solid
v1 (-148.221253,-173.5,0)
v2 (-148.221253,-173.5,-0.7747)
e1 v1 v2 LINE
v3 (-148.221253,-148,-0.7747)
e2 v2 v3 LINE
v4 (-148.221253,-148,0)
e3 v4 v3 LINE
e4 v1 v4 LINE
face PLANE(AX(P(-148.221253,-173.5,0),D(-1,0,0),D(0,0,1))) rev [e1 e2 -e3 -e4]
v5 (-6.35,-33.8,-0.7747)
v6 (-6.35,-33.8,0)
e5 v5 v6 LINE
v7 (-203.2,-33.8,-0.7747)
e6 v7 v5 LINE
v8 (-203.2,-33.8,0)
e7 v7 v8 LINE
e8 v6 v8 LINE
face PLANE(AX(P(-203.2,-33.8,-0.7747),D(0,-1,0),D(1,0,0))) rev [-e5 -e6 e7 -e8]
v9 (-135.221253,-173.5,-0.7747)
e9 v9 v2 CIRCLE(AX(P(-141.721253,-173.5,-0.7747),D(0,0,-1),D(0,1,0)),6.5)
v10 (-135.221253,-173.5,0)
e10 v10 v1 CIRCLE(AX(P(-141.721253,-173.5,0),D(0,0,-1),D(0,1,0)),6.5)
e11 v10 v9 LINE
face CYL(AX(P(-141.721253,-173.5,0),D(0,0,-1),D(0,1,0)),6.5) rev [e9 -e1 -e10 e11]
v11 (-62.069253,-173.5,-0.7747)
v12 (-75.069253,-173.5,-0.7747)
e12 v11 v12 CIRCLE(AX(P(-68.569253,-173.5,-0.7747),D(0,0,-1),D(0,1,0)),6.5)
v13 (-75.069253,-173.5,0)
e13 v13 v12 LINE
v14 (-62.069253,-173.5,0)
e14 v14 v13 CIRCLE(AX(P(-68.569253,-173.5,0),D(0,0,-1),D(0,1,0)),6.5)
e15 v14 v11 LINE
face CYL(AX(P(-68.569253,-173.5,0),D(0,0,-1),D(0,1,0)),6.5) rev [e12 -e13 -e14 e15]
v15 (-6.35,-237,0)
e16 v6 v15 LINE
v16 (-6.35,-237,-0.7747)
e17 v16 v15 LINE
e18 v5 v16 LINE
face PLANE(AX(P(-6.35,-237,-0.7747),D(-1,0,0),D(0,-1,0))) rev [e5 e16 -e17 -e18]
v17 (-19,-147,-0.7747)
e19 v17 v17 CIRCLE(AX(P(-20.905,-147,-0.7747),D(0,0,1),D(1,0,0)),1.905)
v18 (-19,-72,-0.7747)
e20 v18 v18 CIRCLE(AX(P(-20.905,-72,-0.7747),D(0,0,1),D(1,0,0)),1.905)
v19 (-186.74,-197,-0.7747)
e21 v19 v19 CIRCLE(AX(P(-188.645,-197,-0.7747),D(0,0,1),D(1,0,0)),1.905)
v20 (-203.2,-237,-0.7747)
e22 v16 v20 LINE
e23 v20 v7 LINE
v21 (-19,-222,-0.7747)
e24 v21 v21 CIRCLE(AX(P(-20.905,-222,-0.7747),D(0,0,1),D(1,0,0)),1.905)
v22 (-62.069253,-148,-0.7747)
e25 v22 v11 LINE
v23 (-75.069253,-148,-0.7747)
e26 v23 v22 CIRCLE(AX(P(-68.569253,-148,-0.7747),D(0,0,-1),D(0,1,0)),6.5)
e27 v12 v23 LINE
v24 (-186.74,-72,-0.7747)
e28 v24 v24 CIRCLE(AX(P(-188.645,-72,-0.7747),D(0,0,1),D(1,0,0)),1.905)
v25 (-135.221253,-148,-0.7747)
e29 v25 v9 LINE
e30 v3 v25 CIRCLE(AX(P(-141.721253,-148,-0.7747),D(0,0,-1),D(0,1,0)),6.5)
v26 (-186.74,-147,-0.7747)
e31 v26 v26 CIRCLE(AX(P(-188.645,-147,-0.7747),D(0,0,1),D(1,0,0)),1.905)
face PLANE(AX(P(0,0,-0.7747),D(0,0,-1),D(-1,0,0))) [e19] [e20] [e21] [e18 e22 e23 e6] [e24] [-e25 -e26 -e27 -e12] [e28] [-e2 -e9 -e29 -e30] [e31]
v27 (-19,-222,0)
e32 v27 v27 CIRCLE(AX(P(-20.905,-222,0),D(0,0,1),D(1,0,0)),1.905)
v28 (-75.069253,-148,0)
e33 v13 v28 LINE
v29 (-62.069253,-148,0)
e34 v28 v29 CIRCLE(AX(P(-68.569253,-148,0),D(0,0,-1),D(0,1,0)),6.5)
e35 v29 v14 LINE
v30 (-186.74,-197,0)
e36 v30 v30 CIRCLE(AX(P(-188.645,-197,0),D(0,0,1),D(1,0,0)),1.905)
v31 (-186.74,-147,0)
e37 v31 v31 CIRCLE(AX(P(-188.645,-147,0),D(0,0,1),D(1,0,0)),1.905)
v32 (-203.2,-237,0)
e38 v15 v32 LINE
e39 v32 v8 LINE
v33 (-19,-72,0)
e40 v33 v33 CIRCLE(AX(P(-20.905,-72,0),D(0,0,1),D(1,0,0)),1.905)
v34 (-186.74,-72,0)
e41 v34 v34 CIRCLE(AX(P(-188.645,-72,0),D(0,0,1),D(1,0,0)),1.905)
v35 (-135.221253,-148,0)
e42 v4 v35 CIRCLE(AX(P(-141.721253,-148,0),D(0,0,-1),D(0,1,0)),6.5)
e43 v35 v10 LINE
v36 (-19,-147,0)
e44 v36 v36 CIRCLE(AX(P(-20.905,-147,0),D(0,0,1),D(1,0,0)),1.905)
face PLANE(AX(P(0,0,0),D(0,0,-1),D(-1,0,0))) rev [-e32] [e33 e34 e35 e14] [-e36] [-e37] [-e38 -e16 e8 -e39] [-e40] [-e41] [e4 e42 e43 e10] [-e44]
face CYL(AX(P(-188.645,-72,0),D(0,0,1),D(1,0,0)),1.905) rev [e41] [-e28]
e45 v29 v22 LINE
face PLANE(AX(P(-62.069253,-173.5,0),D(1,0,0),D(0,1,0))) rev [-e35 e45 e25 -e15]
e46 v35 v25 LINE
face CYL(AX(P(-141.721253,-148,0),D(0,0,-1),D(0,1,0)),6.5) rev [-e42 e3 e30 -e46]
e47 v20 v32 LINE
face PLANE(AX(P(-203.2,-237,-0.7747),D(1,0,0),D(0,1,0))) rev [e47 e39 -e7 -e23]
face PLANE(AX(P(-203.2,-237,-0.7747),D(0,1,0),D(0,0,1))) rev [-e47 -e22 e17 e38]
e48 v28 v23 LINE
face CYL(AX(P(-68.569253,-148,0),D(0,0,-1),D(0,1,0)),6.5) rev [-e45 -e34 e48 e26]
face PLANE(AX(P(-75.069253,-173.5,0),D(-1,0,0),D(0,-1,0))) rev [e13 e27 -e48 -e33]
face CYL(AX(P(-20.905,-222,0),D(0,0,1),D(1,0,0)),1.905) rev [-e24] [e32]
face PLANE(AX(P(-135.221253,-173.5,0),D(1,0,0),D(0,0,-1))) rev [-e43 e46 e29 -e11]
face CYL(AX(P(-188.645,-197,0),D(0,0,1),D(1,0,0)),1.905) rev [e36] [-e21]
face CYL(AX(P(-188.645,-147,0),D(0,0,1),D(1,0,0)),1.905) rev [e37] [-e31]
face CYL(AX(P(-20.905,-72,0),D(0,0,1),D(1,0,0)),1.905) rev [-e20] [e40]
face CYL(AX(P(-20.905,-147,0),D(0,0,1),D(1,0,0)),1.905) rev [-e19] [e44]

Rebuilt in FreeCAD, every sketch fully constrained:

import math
import FreeCAD as App
import Part
import Sketcher
from FreeCAD import Vector
Q = App.Units.Quantity


def add_polygon(sketch, points):
    """Adds a closed chain of lines whose ends are joined by coincident constraints."""
    first, n = sketch.GeometryCount, len(points)
    for a, b in zip(points, points[1:] + points[:1]):
        sketch.addGeometry(Part.LineSegment(App.Vector(*a, 0), App.Vector(*b, 0)), False)
    for i in range(n):
        sketch.addConstraint(Sketcher.Constraint("Coincident", first + i, 2, first + (i + 1) % n, 1))

doc = App.newDocument("Part")
params = doc.addObject("Spreadsheet::Sheet", "Params")
for row, (alias, value) in enumerate([
    ("sketch1_height", "8 in"),
    ("sketch1_width", "7.75 in"),
    ("pad1_length", "0.0305 in"),
    ("sketch3_width", "7.75 in"),
    ("sketch3_height", "0.024 in"),
    ("pad2_length", "12 mm"),
    ("sketch4_width", "7.75 in"),
    ("sketch4_height", "0.47 in"),
    ("pad3_length", "0.0305 in"),
    ("sketch5_width", "7.75 in"),
    ("sketch5_height", "0.024 in"),
    ("pocket2_length", "12 mm"),
    ("sketch6_diameter", "0.15 in"),
    ("hole_diameter", "0.15 in"),
    ("pad4_length", "0.0305 in"),
    ("pad5_length", "0.0305 in"),
    ("pad6_length", "0.0305 in"),
], start=1):
    params.set(f"A{row}", alias)
    params.set(f"B{row}", "=" + value)
    params.setAlias(f"B{row}", alias)

body = doc.addObject("PartDesign::Body", "Body")

sketch1 = doc.addObject("Sketcher::SketchObject", "Sketch")
body.addObject(sketch1)
sketch1.AttachmentSupport = (doc.XY_Plane, [""])
sketch1.MapMode = "FlatFace"
add_polygon(sketch1, [(-203.2, -237), (-203.2, -33.8), (-6.35, -33.8), (-6.35, -237)])
sketch1.addConstraint([
    Sketcher.Constraint("Vertical", 0),
    Sketcher.Constraint("Horizontal", 1),
    Sketcher.Constraint("Vertical", 2),
    Sketcher.Constraint("Horizontal", 3),
    Sketcher.Constraint("DistanceY", 0, 1, 0, 2, Q("8 in")),
    Sketcher.Constraint("DistanceX", 0, 2, -1, 1, Q("8 in")),
    Sketcher.Constraint("DistanceX", 1, 1, 1, 2, Q("7.75 in")),
    Sketcher.Constraint("DistanceY", 0, 2, -1, 1, Q("33.8 mm")),
])
sketch1.setExpression("Constraints[8]", "Params.sketch1_height")
sketch1.setExpression("Constraints[10]", "Params.sketch1_width")
pad1 = doc.addObject("PartDesign::Pad", "Pad")
body.addObject(pad1)
pad1.Profile = sketch1
pad1.setExpression("Length", "Params.pad1_length")
pad1.Reversed = True

sketch2 = doc.addObject("Sketcher::SketchObject", "Sketch001")
body.addObject(sketch2)
sketch2.AttachmentSupport = (doc.XY_Plane, [""])
sketch2.MapMode = "FlatFace"
sketch2.AttachmentOffset = App.Placement(Vector(0, 0, -0.0305 * 25.4), App.Rotation())
sketch2.addGeometry([
    Part.LineSegment(Vector(-135.221253, -148, 0), Vector(-135.221253, -173.5, 0)),
    Part.ArcOfCircle(Part.Circle(Vector(-141.721253, -173.5, 0), Vector(0, 0, 1), 6.5), math.radians(180), math.radians(360)),
    Part.LineSegment(Vector(-148.221253, -173.5, 0), Vector(-148.221253, -148, 0)),
    Part.ArcOfCircle(Part.Circle(Vector(-141.721253, -148, 0), Vector(0, 0, 1), 6.5), math.radians(0), math.radians(180)),
    Part.LineSegment(Vector(-62.069253, -148, 0), Vector(-62.069253, -173.5, 0)),
    Part.ArcOfCircle(Part.Circle(Vector(-68.569253, -173.5, 0), Vector(0, 0, 1), 6.5), math.radians(180), math.radians(360)),
    Part.LineSegment(Vector(-75.069253, -173.5, 0), Vector(-75.069253, -148, 0)),
    Part.ArcOfCircle(Part.Circle(Vector(-68.569253, -148, 0), Vector(0, 0, 1), 6.5), math.radians(0), math.radians(180)),
], False)
sketch2.addConstraint([
    Sketcher.Constraint("Tangent", 0, 2, 1, 2),
    Sketcher.Constraint("Tangent", 1, 1, 2, 1),
    Sketcher.Constraint("Tangent", 2, 2, 3, 2),
    Sketcher.Constraint("Tangent", 3, 1, 0, 1),
    Sketcher.Constraint("Tangent", 4, 2, 5, 2),
    Sketcher.Constraint("Tangent", 5, 1, 6, 1),
    Sketcher.Constraint("Tangent", 6, 2, 7, 2),
    Sketcher.Constraint("Tangent", 7, 1, 4, 1),
    Sketcher.Constraint("Vertical", 0),
    Sketcher.Constraint("Vertical", 2),
    Sketcher.Constraint("Vertical", 4),
    Sketcher.Constraint("Vertical", 6),
    Sketcher.Constraint("Equal", 3, 5),
    Sketcher.Constraint("Horizontal", 1, 3, 5, 3),
    Sketcher.Constraint("Horizontal", 3, 3, 7, 3),
    Sketcher.Constraint("Radius", 1, Q("6.5 mm")),
    Sketcher.Constraint("DistanceX", 1, 3, 5, 3, Q("2.88 in")),
    Sketcher.Constraint("DistanceY", 0, 2, 0, 1, Q("25.5 mm")),
    Sketcher.Constraint("DistanceY", 1, 3, -1, 1, Q("173.5 mm")),
    Sketcher.Constraint("DistanceX", 1, 3, -1, 1, Q("141.721253 mm")),
])
pocket1 = doc.addObject("PartDesign::Pocket", "Pocket")
body.addObject(pocket1)
pocket1.Profile = sketch2
pocket1.Type = "ThroughAll"
pocket1.Reversed = True

sketch3 = doc.addObject("Sketcher::SketchObject", "Sketch002")
body.addObject(sketch3)
sketch3.AttachmentSupport = (doc.XY_Plane, [""])
sketch3.MapMode = "FlatFace"
add_polygon(sketch3, [(-203.2, -33.8), (-203.2, -34.4096), (-6.35, -34.4096), (-6.35, -33.8)])
sketch3.addConstraint([
    Sketcher.Constraint("Vertical", 0),
    Sketcher.Constraint("Horizontal", 1),
    Sketcher.Constraint("Vertical", 2),
    Sketcher.Constraint("Horizontal", 3),
    Sketcher.Constraint("DistanceX", 0, 2, -1, 1, Q("8 in")),
    Sketcher.Constraint("DistanceX", 1, 1, 1, 2, Q("7.75 in")),
    Sketcher.Constraint("DistanceY", 0, 2, 0, 1, Q("0.024 in")),
    Sketcher.Constraint("DistanceY", 0, 2, -1, 1, Q("34.4096 mm")),
])
sketch3.setExpression("Constraints[9]", "Params.sketch3_width")
sketch3.setExpression("Constraints[10]", "Params.sketch3_height")
pad2 = doc.addObject("PartDesign::Pad", "Pad001")
body.addObject(pad2)
pad2.Profile = sketch3
pad2.setExpression("Length", "Params.pad2_length")

sketch4 = doc.addObject("Sketcher::SketchObject", "Sketch003")
body.addObject(sketch4)
sketch4.AttachmentSupport = (doc.XY_Plane, [""])
sketch4.MapMode = "FlatFace"
add_polygon(sketch4, [(-203.2, -47.966004), (-203.2, -59.904004), (-6.35, -59.904004), (-6.35, -47.966004)])
sketch4.addConstraint([
    Sketcher.Constraint("Vertical", 0),
    Sketcher.Constraint("Horizontal", 1),
    Sketcher.Constraint("Vertical", 2),
    Sketcher.Constraint("Horizontal", 3),
    Sketcher.Constraint("DistanceX", 0, 2, -1, 1, Q("8 in")),
    Sketcher.Constraint("DistanceX", 1, 1, 1, 2, Q("7.75 in")),
    Sketcher.Constraint("DistanceY", 0, 2, 0, 1, Q("0.47 in")),
    Sketcher.Constraint("DistanceY", 0, 2, -1, 1, Q("59.904004 mm")),
])
sketch4.setExpression("Constraints[9]", "Params.sketch4_width")
sketch4.setExpression("Constraints[10]", "Params.sketch4_height")
pad3 = doc.addObject("PartDesign::Pad", "Pad002")
body.addObject(pad3)
pad3.Profile = sketch4
pad3.setExpression("Length", "Params.pad3_length")
pad3.Reversed = True

sketch5 = doc.addObject("Sketcher::SketchObject", "Sketch004")
body.addObject(sketch5)
sketch5.AttachmentSupport = (doc.XY_Plane, [""])
sketch5.MapMode = "FlatFace"
sketch5.AttachmentOffset = App.Placement(Vector(0, 0, 12), App.Rotation())
add_polygon(sketch5, [(-203.2, -33.8), (-203.2, -34.4096), (-6.35, -34.4096), (-6.35, -33.8)])
sketch5.addConstraint([
    Sketcher.Constraint("Vertical", 0),
    Sketcher.Constraint("Horizontal", 1),
    Sketcher.Constraint("Vertical", 2),
    Sketcher.Constraint("Horizontal", 3),
    Sketcher.Constraint("DistanceX", 0, 2, -1, 1, Q("8 in")),
    Sketcher.Constraint("DistanceX", 1, 1, 1, 2, Q("7.75 in")),
    Sketcher.Constraint("DistanceY", 0, 2, 0, 1, Q("0.024 in")),
    Sketcher.Constraint("DistanceY", 0, 2, -1, 1, Q("34.4096 mm")),
])
sketch5.setExpression("Constraints[9]", "Params.sketch5_width")
sketch5.setExpression("Constraints[10]", "Params.sketch5_height")
pocket2 = doc.addObject("PartDesign::Pocket", "Pocket001")
body.addObject(pocket2)
pocket2.Profile = sketch5
pocket2.setExpression("Length", "Params.pocket2_length")

sketch6 = doc.addObject("Sketcher::SketchObject", "Sketch005")
body.addObject(sketch6)
sketch6.AttachmentSupport = (doc.XY_Plane, [""])
sketch6.MapMode = "FlatFace"
sketch6.addGeometry([
    Part.Circle(Vector(-188.645, -72, 0), Vector(0, 0, 1), 1.905),
    Part.Circle(Vector(-188.645, -222, 0), Vector(0, 0, 1), 1.905),
    Part.Circle(Vector(-188.645, -197, 0), Vector(0, 0, 1), 1.905),
    Part.Circle(Vector(-188.645, -172, 0), Vector(0, 0, 1), 1.905),
    Part.Circle(Vector(-188.645, -147, 0), Vector(0, 0, 1), 1.905),
    Part.Circle(Vector(-188.645, -122, 0), Vector(0, 0, 1), 1.905),
    Part.Circle(Vector(-188.645, -97, 0), Vector(0, 0, 1), 1.905),
], False)
sketch6.addConstraint([
    Sketcher.Constraint("Equal", 0, 1),
    Sketcher.Constraint("Equal", 1, 2),
    Sketcher.Constraint("Equal", 2, 3),
    Sketcher.Constraint("Equal", 3, 4),
    Sketcher.Constraint("Equal", 4, 5),
    Sketcher.Constraint("Equal", 5, 6),
    Sketcher.Constraint("Vertical", 0, 3, 1, 3),
    Sketcher.Constraint("Vertical", 1, 3, 2, 3),
    Sketcher.Constraint("Vertical", 2, 3, 3, 3),
    Sketcher.Constraint("Vertical", 3, 3, 4, 3),
    Sketcher.Constraint("Vertical", 4, 3, 5, 3),
    Sketcher.Constraint("Vertical", 5, 3, 6, 3),
    Sketcher.Constraint("Diameter", 0, Q("0.15 in")),
    Sketcher.Constraint("DistanceX", 0, 3, -1, 1, Q("188.645 mm")),
    Sketcher.Constraint("DistanceY", 0, 3, -1, 1, Q("72 mm")),
    Sketcher.Constraint("DistanceY", 1, 3, -1, 1, Q("222 mm")),
    Sketcher.Constraint("DistanceY", 2, 3, -1, 1, Q("197 mm")),
    Sketcher.Constraint("DistanceY", 3, 3, -1, 1, Q("172 mm")),
    Sketcher.Constraint("DistanceY", 4, 3, -1, 1, Q("147 mm")),
    Sketcher.Constraint("DistanceY", 5, 3, -1, 1, Q("122 mm")),
    Sketcher.Constraint("DistanceY", 6, 3, -1, 1, Q("97 mm")),
])
sketch6.setExpression("Constraints[12]", "Params.sketch6_diameter")
doc.recompute()
hole = doc.addObject("PartDesign::Hole", "Hole")
body.addObject(hole)
hole.Profile = sketch6
hole.ThreadType = "None"
hole.setExpression("Diameter", "Params.hole_diameter")
hole.DepthType = "ThroughAll"
doc.recompute()

datumplane = doc.addObject("PartDesign::Plane", "DatumPlane")
body.addObject(datumplane)
datumplane.AttachmentSupport = (doc.YZ_Plane, [""])
datumplane.MapMode = "FlatFace"
datumplane.AttachmentOffset = App.Placement(Vector(0, 0, -4.125 * 25.4), App.Rotation())
mirrored = doc.addObject("PartDesign::Mirrored", "Mirrored")
body.addObject(mirrored)
mirrored.Originals = [hole]
mirrored.MirrorPlane = (datumplane, [""])
body.Tip = mirrored

sketch7 = doc.addObject("Sketcher::SketchObject", "Sketch006")
body.addObject(sketch7)
sketch7.AttachmentSupport = (doc.XY_Plane, [""])
sketch7.MapMode = "FlatFace"
sketch7.AttachmentOffset = App.Placement(Vector(0, 0, -0.0305 * 25.4), App.Rotation())
add_polygon(sketch7, [(-9.928541, -92.966873), (-9.928541, -126.70806), (-192.604871, -126.70806), (-192.604871, -92.966873)])
sketch7.addConstraint([
    Sketcher.Constraint("Vertical", 0),
    Sketcher.Constraint("Horizontal", 1),
    Sketcher.Constraint("Vertical", 2),
    Sketcher.Constraint("Horizontal", 3),
    Sketcher.Constraint("DistanceX", 1, 2, 1, 1, Q("182.676331 mm")),
    Sketcher.Constraint("DistanceY", 0, 2, 0, 1, Q("33.741187 mm")),
    Sketcher.Constraint("DistanceX", 0, 2, -1, 1, Q("9.928541 mm")),
    Sketcher.Constraint("DistanceY", 0, 2, -1, 1, Q("126.70806 mm")),
])
pad4 = doc.addObject("PartDesign::Pad", "Pad003")
body.addObject(pad4)
pad4.Profile = sketch7
pad4.setExpression("Length", "Params.pad4_length")

sketch8 = doc.addObject("Sketcher::SketchObject", "Sketch007")
body.addObject(sketch8)
sketch8.AttachmentSupport = (doc.XY_Plane, [""])
sketch8.MapMode = "FlatFace"
sketch8.AttachmentOffset = App.Placement(Vector(0, 0, -0.0305 * 25.4), App.Rotation())
add_polygon(sketch8, [(-174.212692, -159.763234), (-174.212692, -182.075533), (-196.930693, -182.075533), (-196.930693, -159.763234)])
add_polygon(sketch8, [(-13.501954, -165.432262), (-13.501954, -182.075533), (-35.04079, -182.075533), (-35.04079, -165.432262)])
sketch8.addConstraint([
    Sketcher.Constraint("Vertical", 0),
    Sketcher.Constraint("Horizontal", 1),
    Sketcher.Constraint("Vertical", 2),
    Sketcher.Constraint("Horizontal", 3),
    Sketcher.Constraint("Vertical", 4),
    Sketcher.Constraint("Horizontal", 5),
    Sketcher.Constraint("Vertical", 6),
    Sketcher.Constraint("Horizontal", 7),
    Sketcher.Constraint("Horizontal", 1, 2, 4, 2),
    Sketcher.Constraint("DistanceX", 1, 2, 1, 1, Q("22.718001 mm")),
    Sketcher.Constraint("DistanceY", 0, 2, 0, 1, Q("22.312299 mm")),
    Sketcher.Constraint("DistanceY", 4, 2, 4, 1, Q("16.643271 mm")),
    Sketcher.Constraint("DistanceX", 5, 2, 5, 1, Q("21.538836 mm")),
    Sketcher.Constraint("DistanceX", 5, 2, -1, 1, Q("35.04079 mm")),
    Sketcher.Constraint("DistanceX", 0, 2, 4, 2, Q("160.710738 mm")),
    Sketcher.Constraint("DistanceY", 0, 2, -1, 1, Q("182.075533 mm")),
])
pad5 = doc.addObject("PartDesign::Pad", "Pad004")
body.addObject(pad5)
pad5.Profile = sketch8
pad5.setExpression("Length", "Params.pad5_length")

sketch9 = doc.addObject("Sketcher::SketchObject", "Sketch008")
body.addObject(sketch9)
sketch9.AttachmentSupport = (doc.XY_Plane, [""])
sketch9.MapMode = "FlatFace"
add_polygon(sketch9, [(-196.26654, -213.776235), (-196.26654, -227.991452), (-182.361222, -227.991452), (-182.361222, -213.776235)])
add_polygon(sketch9, [(-29.924818, -193.338603), (-29.924818, -202.41418), (-17.415239, -202.41418), (-17.415239, -193.338603)])
sketch9.addConstraint([
    Sketcher.Constraint("Vertical", 0),
    Sketcher.Constraint("Horizontal", 1),
    Sketcher.Constraint("Vertical", 2),
    Sketcher.Constraint("Horizontal", 3),
    Sketcher.Constraint("Vertical", 4),
    Sketcher.Constraint("Horizontal", 5),
    Sketcher.Constraint("Vertical", 6),
    Sketcher.Constraint("Horizontal", 7),
    Sketcher.Constraint("DistanceX", 1, 1, 1, 2, Q("13.905318 mm")),
    Sketcher.Constraint("DistanceX", 5, 1, 5, 2, Q("12.509578 mm")),
    Sketcher.Constraint("DistanceX", 3, 2, 5, 2, Q("178.851301 mm")),
    Sketcher.Constraint("DistanceY", 0, 2, 0, 1, Q("14.215217 mm")),
    Sketcher.Constraint("DistanceY", 4, 2, 4, 1, Q("9.075577 mm")),
    Sketcher.Constraint("DistanceX", 0, 2, -1, 1, Q("196.26654 mm")),
    Sketcher.Constraint("DistanceY", 4, 2, -1, 1, Q("202.41418 mm")),
    Sketcher.Constraint("DistanceY", 1, 2, 6, 2, Q("34.652849 mm")),
])
pad6 = doc.addObject("PartDesign::Pad", "Pad005")
body.addObject(pad6)
pad6.Profile = sketch9
pad6.setExpression("Length", "Params.pad6_length")
pad6.Reversed = True

doc.recompute()
